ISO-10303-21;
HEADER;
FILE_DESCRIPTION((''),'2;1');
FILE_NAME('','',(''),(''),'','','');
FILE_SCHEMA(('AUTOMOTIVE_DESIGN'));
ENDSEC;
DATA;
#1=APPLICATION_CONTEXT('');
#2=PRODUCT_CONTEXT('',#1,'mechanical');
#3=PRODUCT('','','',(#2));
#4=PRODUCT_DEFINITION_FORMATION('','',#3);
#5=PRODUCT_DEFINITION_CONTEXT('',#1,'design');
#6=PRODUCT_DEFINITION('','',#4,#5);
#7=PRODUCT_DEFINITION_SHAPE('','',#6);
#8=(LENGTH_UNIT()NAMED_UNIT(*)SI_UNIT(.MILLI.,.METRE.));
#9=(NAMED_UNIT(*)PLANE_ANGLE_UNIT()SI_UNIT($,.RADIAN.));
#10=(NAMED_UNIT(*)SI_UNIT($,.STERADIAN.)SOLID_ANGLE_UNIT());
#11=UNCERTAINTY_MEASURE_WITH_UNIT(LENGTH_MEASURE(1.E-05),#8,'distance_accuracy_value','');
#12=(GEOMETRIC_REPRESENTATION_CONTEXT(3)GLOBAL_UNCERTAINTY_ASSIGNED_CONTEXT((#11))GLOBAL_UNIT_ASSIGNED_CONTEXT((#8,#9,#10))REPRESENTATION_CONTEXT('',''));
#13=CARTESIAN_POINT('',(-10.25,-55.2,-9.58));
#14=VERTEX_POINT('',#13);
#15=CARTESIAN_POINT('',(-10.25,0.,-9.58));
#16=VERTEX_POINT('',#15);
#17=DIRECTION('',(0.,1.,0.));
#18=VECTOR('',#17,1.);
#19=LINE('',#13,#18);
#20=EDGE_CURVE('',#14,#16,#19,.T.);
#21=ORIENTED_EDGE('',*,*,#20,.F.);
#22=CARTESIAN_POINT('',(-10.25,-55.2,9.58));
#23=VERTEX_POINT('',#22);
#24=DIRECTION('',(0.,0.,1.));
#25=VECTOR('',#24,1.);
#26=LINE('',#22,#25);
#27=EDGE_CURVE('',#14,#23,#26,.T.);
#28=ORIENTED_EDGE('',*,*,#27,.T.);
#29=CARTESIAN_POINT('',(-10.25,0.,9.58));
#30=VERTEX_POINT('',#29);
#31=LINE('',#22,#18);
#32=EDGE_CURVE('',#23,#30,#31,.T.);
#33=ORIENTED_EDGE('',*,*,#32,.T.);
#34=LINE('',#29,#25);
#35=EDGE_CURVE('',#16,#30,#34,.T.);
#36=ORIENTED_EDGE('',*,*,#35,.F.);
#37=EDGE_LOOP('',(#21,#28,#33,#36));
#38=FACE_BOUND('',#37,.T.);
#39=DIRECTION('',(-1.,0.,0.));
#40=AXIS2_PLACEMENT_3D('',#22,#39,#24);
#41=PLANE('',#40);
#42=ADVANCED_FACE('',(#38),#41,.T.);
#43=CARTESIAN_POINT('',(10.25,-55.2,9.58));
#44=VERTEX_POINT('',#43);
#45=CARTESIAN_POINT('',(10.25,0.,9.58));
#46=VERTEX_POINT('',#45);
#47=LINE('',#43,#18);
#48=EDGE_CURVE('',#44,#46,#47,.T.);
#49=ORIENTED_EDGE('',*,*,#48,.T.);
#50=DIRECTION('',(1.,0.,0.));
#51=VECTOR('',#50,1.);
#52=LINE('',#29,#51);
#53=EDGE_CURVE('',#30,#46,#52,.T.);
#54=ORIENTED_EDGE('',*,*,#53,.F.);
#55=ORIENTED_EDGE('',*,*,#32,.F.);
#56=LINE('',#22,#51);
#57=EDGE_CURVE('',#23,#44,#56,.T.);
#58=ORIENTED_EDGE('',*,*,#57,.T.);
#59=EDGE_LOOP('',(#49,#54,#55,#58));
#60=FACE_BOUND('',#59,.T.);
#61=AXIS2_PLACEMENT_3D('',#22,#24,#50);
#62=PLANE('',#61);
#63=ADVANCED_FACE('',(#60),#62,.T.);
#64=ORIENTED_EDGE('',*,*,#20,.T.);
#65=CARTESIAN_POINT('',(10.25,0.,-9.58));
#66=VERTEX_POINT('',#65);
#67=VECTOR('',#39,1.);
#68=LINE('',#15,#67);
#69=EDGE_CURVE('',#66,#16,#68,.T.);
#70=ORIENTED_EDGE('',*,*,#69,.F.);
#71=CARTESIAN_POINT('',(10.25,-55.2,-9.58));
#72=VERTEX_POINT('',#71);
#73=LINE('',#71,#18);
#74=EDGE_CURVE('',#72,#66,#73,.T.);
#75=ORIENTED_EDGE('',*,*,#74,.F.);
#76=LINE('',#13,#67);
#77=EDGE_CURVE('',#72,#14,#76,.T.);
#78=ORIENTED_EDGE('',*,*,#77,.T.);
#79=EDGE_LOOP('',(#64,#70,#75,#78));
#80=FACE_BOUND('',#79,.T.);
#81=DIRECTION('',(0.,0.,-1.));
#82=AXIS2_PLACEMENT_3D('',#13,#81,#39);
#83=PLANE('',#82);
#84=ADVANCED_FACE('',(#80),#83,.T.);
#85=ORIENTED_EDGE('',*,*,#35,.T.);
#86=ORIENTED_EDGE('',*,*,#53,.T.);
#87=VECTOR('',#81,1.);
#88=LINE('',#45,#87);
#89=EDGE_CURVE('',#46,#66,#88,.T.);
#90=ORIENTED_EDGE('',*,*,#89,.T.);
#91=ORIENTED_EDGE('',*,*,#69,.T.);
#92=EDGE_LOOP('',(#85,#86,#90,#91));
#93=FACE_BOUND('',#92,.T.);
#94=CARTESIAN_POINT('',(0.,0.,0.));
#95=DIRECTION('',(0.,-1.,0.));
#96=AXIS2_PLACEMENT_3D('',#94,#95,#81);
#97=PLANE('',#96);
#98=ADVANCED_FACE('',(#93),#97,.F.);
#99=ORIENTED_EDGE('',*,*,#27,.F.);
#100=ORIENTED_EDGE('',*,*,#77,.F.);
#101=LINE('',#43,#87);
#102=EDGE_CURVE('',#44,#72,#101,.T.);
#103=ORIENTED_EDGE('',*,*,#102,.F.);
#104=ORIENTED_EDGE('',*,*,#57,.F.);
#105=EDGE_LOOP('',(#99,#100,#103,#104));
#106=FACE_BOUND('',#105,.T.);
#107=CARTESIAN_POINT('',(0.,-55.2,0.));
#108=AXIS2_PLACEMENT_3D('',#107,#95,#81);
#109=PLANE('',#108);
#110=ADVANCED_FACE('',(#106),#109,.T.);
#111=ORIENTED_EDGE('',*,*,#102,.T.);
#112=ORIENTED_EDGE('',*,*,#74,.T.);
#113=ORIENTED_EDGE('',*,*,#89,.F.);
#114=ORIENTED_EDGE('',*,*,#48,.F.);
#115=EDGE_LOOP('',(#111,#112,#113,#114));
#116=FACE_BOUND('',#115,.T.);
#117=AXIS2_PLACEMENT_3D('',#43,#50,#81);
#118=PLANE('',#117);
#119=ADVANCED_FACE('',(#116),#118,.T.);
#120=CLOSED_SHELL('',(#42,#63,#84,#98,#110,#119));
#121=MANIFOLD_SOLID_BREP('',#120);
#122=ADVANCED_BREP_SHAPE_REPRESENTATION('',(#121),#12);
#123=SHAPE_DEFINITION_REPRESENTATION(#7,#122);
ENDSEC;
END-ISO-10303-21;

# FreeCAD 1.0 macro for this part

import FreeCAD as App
import Part
import Sketcher
Q = App.Units.Quantity


def add_polygon(sketch, points):
    """Adds a closed chain of lines whose ends are joined by coincident constraints."""
    first, n = sketch.GeometryCount, len(points)
    for a, b in zip(points, points[1:] + points[:1]):
        sketch.addGeometry(Part.LineSegment(App.Vector(*a, 0), App.Vector(*b, 0)), False)
    for i in range(n):
        sketch.addConstraint(Sketcher.Constraint("Coincident", first + i, 2, first + (i + 1) % n, 1))

doc = App.newDocument("Part")
body = doc.addObject("PartDesign::Body", "Body")

sketch1 = doc.addObject("Sketcher::SketchObject", "Sketch")
body.addObject(sketch1)
sketch1.AttachmentSupport = (doc.XZ_Plane, [""])
sketch1.MapMode = "FlatFace"
add_polygon(sketch1, [(-10, -10), (-10, 10), (10, 10), (10, -10)])
sketch1.addConstraint([
    Sketcher.Constraint("Vertical", 0),
    Sketcher.Constraint("Horizontal", 1),
    Sketcher.Constraint("Vertical", 2),
    Sketcher.Constraint("Horizontal", 3),
    Sketcher.Constraint("Symmetric", 0, 2, 2, 2, -1, 1),
    Sketcher.Constraint("DistanceX", 1, 1, 1, 2, Q("20.5 mm")),
    Sketcher.Constraint("DistanceY", 0, 1, 0, 2, Q("19.16 mm")),
])
pad1 = doc.addObject("PartDesign::Pad", "Pad")
body.addObject(pad1)
pad1.Profile = sketch1
pad1.Length = 55.2

doc.recompute()
